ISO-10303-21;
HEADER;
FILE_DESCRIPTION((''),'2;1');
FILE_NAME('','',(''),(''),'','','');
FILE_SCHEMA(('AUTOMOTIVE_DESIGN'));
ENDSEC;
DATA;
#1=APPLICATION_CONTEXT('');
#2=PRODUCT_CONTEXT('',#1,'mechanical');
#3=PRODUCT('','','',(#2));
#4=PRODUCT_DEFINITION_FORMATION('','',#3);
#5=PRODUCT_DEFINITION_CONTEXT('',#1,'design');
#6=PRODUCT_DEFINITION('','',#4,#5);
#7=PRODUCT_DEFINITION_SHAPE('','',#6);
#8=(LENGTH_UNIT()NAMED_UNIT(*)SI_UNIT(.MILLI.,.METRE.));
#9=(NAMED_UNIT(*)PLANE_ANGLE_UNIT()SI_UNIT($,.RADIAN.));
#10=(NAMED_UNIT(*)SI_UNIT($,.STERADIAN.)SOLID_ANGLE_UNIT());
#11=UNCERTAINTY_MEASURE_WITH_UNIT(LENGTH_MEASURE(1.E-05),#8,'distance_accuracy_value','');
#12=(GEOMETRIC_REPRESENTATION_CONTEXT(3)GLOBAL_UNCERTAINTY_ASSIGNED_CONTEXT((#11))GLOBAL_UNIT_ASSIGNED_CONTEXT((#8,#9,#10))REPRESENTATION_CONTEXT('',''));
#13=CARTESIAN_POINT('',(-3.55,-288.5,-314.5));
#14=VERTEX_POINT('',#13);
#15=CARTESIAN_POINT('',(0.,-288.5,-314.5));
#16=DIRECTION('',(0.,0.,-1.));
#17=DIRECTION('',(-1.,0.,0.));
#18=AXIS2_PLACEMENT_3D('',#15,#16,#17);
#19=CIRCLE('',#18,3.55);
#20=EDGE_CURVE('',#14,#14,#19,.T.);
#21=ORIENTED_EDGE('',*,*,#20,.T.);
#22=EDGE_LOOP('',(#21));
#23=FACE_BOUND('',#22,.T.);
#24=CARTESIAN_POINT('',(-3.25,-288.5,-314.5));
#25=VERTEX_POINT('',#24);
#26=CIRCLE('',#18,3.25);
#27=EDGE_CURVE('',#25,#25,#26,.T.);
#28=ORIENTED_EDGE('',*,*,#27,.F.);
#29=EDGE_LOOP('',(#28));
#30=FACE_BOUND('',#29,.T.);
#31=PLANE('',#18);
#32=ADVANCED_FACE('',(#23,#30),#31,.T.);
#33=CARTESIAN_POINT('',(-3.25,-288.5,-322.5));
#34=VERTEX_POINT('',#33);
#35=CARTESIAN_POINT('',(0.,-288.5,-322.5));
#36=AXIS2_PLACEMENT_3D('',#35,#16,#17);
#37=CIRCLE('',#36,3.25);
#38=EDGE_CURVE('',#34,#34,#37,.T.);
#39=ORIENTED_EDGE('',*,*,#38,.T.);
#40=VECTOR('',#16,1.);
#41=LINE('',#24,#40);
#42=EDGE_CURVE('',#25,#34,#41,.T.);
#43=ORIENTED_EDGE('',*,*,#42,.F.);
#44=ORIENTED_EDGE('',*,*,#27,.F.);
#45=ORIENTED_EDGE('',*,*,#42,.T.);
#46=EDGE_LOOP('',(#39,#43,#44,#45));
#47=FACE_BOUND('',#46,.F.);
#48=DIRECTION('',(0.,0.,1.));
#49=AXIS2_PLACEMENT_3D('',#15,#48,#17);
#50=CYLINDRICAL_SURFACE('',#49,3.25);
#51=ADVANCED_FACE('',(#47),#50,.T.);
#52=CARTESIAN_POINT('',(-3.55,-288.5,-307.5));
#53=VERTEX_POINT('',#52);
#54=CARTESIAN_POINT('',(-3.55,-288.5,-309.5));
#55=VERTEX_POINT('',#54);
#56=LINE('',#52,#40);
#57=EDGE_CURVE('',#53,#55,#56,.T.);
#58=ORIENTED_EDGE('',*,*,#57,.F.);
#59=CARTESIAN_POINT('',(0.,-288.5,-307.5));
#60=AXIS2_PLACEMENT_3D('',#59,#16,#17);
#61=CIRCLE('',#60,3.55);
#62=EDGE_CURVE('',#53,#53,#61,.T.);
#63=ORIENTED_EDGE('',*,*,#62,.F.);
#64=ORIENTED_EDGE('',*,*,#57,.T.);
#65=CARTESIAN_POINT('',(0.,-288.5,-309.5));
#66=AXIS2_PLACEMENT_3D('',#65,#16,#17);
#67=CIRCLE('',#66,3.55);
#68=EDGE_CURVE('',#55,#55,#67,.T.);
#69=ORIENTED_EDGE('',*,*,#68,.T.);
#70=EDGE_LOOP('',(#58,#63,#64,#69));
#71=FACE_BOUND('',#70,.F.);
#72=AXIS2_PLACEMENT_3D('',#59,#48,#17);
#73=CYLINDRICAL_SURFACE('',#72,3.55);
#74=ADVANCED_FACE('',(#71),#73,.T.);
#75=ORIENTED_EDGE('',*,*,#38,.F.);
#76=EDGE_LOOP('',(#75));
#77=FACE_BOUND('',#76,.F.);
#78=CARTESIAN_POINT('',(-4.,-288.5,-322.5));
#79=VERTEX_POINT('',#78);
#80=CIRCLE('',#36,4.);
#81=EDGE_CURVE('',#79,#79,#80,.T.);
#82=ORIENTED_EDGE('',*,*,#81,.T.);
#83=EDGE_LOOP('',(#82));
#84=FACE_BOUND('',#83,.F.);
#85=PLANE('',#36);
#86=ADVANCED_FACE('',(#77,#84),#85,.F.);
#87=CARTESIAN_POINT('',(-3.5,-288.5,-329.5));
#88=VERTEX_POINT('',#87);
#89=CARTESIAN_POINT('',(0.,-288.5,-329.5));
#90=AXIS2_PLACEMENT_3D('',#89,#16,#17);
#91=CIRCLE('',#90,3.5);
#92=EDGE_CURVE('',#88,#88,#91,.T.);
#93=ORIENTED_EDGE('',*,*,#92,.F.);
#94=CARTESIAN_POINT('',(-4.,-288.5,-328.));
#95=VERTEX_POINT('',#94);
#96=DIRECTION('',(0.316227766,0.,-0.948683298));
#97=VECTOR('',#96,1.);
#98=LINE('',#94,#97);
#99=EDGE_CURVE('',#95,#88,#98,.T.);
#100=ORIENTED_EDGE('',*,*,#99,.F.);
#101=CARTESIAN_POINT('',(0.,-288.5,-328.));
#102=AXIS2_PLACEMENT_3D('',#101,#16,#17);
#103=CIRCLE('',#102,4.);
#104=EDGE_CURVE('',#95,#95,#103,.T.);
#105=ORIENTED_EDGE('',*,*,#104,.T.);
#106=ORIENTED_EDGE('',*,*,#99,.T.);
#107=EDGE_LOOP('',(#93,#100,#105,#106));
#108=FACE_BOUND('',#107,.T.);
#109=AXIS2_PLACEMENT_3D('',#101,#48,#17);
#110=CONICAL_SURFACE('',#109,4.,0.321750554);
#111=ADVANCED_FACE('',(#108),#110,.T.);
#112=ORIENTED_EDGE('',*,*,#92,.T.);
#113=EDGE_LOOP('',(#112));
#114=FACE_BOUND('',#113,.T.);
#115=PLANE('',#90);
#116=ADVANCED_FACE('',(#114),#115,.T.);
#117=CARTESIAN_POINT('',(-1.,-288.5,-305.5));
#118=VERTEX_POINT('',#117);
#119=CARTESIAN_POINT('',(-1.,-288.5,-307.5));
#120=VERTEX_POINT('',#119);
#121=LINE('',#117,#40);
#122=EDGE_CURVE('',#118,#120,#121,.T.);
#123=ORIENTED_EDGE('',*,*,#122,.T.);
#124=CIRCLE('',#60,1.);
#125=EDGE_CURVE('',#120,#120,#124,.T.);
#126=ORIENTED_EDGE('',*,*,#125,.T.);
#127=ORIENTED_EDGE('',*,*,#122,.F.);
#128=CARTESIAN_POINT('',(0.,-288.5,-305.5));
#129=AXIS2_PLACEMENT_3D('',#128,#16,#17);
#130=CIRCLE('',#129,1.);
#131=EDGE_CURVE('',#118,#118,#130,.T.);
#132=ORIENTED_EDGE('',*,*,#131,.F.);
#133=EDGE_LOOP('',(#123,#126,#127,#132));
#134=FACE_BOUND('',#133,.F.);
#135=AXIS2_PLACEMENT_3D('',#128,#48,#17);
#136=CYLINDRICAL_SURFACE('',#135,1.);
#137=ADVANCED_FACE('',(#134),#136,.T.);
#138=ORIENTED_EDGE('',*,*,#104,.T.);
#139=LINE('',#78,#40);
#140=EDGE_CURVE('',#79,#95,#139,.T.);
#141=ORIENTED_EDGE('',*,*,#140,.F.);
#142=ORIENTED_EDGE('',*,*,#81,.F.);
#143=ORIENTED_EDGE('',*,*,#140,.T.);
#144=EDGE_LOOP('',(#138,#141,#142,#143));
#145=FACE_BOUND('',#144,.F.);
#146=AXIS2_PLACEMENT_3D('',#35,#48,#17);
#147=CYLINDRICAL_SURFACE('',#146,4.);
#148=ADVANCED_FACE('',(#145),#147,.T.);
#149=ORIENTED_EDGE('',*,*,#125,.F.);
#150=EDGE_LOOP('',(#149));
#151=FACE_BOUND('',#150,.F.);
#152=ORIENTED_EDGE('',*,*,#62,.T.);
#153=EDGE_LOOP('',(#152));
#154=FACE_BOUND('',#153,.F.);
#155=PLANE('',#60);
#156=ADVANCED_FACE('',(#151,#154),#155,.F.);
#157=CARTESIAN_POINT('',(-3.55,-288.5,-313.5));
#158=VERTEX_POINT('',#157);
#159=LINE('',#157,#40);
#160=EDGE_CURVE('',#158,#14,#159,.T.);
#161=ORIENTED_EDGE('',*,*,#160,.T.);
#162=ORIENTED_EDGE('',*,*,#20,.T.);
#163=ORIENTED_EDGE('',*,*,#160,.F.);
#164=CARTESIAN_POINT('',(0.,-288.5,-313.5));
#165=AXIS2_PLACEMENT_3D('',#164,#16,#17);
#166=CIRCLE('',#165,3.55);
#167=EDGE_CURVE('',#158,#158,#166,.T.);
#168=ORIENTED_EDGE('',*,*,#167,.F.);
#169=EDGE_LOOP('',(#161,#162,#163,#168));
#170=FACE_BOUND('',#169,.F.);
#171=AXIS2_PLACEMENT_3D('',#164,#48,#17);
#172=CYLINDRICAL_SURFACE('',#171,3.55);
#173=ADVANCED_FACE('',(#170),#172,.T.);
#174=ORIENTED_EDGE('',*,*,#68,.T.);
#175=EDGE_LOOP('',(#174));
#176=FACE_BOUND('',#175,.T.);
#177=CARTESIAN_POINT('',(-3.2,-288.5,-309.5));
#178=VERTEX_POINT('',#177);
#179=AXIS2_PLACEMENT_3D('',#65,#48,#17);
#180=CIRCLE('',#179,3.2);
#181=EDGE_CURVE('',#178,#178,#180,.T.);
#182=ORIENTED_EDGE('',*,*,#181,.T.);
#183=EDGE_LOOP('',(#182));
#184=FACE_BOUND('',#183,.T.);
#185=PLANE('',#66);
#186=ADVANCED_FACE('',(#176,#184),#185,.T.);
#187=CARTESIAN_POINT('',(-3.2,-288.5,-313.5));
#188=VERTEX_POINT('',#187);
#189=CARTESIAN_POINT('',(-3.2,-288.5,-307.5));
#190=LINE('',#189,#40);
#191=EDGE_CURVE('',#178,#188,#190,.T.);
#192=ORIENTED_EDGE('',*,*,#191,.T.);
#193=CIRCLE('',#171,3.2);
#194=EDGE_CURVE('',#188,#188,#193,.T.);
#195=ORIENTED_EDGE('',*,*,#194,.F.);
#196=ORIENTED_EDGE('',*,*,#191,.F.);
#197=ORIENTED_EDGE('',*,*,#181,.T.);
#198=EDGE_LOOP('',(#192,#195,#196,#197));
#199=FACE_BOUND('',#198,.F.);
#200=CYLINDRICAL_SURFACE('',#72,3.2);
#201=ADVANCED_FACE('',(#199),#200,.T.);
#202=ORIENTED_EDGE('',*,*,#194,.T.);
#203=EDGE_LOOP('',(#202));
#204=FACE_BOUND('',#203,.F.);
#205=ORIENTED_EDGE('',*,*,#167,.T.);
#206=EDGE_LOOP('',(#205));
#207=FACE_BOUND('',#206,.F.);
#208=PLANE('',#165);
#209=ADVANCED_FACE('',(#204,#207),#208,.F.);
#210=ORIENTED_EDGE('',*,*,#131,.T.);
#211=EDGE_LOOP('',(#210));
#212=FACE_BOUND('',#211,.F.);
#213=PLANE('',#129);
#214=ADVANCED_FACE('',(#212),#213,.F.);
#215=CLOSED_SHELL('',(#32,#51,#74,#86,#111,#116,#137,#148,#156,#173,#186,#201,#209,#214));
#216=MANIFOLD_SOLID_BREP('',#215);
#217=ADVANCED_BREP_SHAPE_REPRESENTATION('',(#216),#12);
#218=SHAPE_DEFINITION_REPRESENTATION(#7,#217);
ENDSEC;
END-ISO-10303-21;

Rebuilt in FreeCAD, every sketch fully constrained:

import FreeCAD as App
import Part
import Sketcher

V = App.Vector

doc = App.newDocument("Part")
params = doc.addObject("Spreadsheet::Sheet", "Params")
for row, (alias, value) in enumerate([
    ("sketch1_diameter", "6.4 mm"),
    ("pad1_length", "22 mm"),
    ("sketch2_diameter", "7.1 mm"),
    ("pad2_length", "2 mm"),
    ("sketch3_diameter", "7.1 mm"),
    ("pad3_length", "1 mm"),
    ("sketch4_diameter", "6.5 mm"),
    ("pad4_length", "8 mm"),
    ("sketch5_diameter", "8 mm"),
    ("pad5_length", "5.5 mm"),
    ("sketch6_width", "4 mm"),
    ("sketch6_width2", "3.5 mm"),
    ("sketch6_height", "1.5 mm"),
    ("revolution_angle", "360 deg"),
    ("sketch7_diameter", "2 mm"),
    ("pad6_length", "2 mm"),
], start=1):
    params.set(f"A{row}", alias)
    params.set(f"B{row}", "=" + value)
    params.setAlias(f"B{row}", alias)

body = doc.addObject("PartDesign::Body", "Body")

# Sketch on XY plane
sketch1 = body.newObject("Sketcher::SketchObject", "Sketch")
sketch1.AttachmentSupport = (doc.getObject("XY_Plane"), [""])
sketch1.MapMode = "FlatFace"
sketch1.AttachmentOffset = App.Placement(V(0, 0, 5), App.Rotation())
sketch1.addGeometry(Part.Circle(V(0, 0, 0), V(0, 0, 1), 3.2), False)
sketch1.addConstraint([
    Sketcher.Constraint("Coincident", 0, 3, -1, 1),
    Sketcher.Constraint("Diameter", 0, 6.4),
])
sketch1.setExpression("Constraints[1]", "Params.sketch1_diameter")
pad1 = body.newObject("PartDesign::Pad", "Pad")
pad1.Profile = sketch1
pad1.setExpression("Length", "Params.pad1_length")
body2 = doc.addObject("PartDesign::Body", "Body001")

# Sketch on XY plane
sketch2 = body2.newObject("Sketcher::SketchObject", "Sketch001")
sketch2.AttachmentSupport = (doc.getObject("XY_Plane001"), [""])
sketch2.MapMode = "FlatFace"
sketch2.AttachmentOffset = App.Placement(V(0, 0, 5), App.Rotation())
sketch2.addGeometry(Part.Circle(V(0, 0, 0), V(0, 0, 1), 3.55), False)
sketch2.addConstraint([
    Sketcher.Constraint("Coincident", 0, 3, -1, 1),
    Sketcher.Constraint("Diameter", 0, 7.1),
])
sketch2.setExpression("Constraints[1]", "Params.sketch2_diameter")
pad2 = body2.newObject("PartDesign::Pad", "Pad001")
pad2.Profile = sketch2
pad2.setExpression("Length", "Params.pad2_length")
body3 = doc.addObject("PartDesign::Body", "Body002")

# Sketch on XY plane
sketch3 = body3.newObject("Sketcher::SketchObject", "Sketch002")
sketch3.AttachmentSupport = (doc.getObject("XY_Plane002"), [""])
sketch3.MapMode = "FlatFace"
sketch3.AttachmentOffset = App.Placement(V(0, 0, 11), App.Rotation())
sketch3.addGeometry(Part.Circle(V(0, 0, 0), V(0, 0, 1), 3.55), False)
sketch3.addConstraint([
    Sketcher.Constraint("Coincident", 0, 3, -1, 1),
    Sketcher.Constraint("Diameter", 0, 7.1),
])
sketch3.setExpression("Constraints[1]", "Params.sketch3_diameter")
pad3 = body3.newObject("PartDesign::Pad", "Pad002")
pad3.Profile = sketch3
pad3.setExpression("Length", "Params.pad3_length")
body4 = doc.addObject("PartDesign::Body", "Body003")

# Sketch on XY plane
sketch4 = body4.newObject("Sketcher::SketchObject", "Sketch003")
sketch4.AttachmentSupport = (doc.getObject("XY_Plane003"), [""])
sketch4.MapMode = "FlatFace"
sketch4.AttachmentOffset = App.Placement(V(0, 0, 12), App.Rotation())
sketch4.addGeometry(Part.Circle(V(0, 0, 0), V(0, 0, 1), 3.25), False)
sketch4.addConstraint([
    Sketcher.Constraint("Coincident", 0, 3, -1, 1),
    Sketcher.Constraint("Diameter", 0, 6.5),
])
sketch4.setExpression("Constraints[1]", "Params.sketch4_diameter")
pad4 = body4.newObject("PartDesign::Pad", "Pad003")
pad4.Profile = sketch4
pad4.setExpression("Length", "Params.pad4_length")
body5 = doc.addObject("PartDesign::Body", "Body004")

# Sketch on XY plane
sketch5 = body5.newObject("Sketcher::SketchObject", "Sketch004")
sketch5.AttachmentSupport = (doc.getObject("XY_Plane004"), [""])
sketch5.MapMode = "FlatFace"
sketch5.AttachmentOffset = App.Placement(V(0, 0, 20), App.Rotation())
sketch5.addGeometry(Part.Circle(V(0, 0, 0), V(0, 0, 1), 4), False)
sketch5.addConstraint([
    Sketcher.Constraint("Coincident", 0, 3, -1, 1),
    Sketcher.Constraint("Diameter", 0, 8.0),
])
sketch5.setExpression("Constraints[1]", "Params.sketch5_diameter")
pad5 = body5.newObject("PartDesign::Pad", "Pad004")
pad5.Profile = sketch5
pad5.setExpression("Length", "Params.pad5_length")
body6 = doc.addObject("PartDesign::Body", "Body005")

# Sketch on XZ plane
sketch6 = body6.newObject("Sketcher::SketchObject", "Sketch005")
sketch6.AttachmentSupport = (doc.getObject("XZ_Plane005"), [""])
sketch6.MapMode = "FlatFace"
sketch6.addGeometry([
    Part.LineSegment(V(0, 25.5, 0), V(4, 25.5, 0)),
    Part.LineSegment(V(4, 25.5, 0), V(3.5, 27, 0)),
    Part.LineSegment(V(3.5, 27, 0), V(0, 27, 0)),
    Part.LineSegment(V(0, 27, 0), V(0, 25.5, 0)),
], False)
sketch6.addConstraint([
    Sketcher.Constraint("Coincident", 0, 2, 1, 1),
    Sketcher.Constraint("Coincident", 1, 2, 2, 1),
    Sketcher.Constraint("Coincident", 2, 2, 3, 1),
    Sketcher.Constraint("Coincident", 3, 2, 0, 1),
    Sketcher.Constraint("Horizontal", 0),
    Sketcher.Constraint("Horizontal", 2),
    Sketcher.Constraint("Vertical", 3),
    Sketcher.Constraint("PointOnObject", 2, 2, -2),
    Sketcher.Constraint("DistanceX", 0, 1, 0, 2, 4.0),
    Sketcher.Constraint("DistanceX", 2, 2, 2, 1, 3.5),
    Sketcher.Constraint("DistanceY", 3, 2, 3, 1, 1.5),
    Sketcher.Constraint("DistanceY", -1, 1, 1, 2, 27.0),
])
sketch6.setExpression("Constraints[8]", "Params.sketch6_width")
sketch6.setExpression("Constraints[9]", "Params.sketch6_width2")
sketch6.setExpression("Constraints[10]", "Params.sketch6_height")
revolution = body6.newObject("PartDesign::Revolution", "Revolution")
revolution.Profile = sketch6
revolution.ReferenceAxis = (sketch6, ["V_Axis"])
revolution.setExpression("Angle", "Params.revolution_angle")
doc.recompute()

boolean = body6.newObject("PartDesign::Boolean", "Boolean")
boolean.Type = "Fuse"
boolean.addObjects([body])
doc.recompute()

boolean2 = body6.newObject("PartDesign::Boolean", "Boolean001")
boolean2.Type = "Fuse"
boolean2.addObjects([body2])
doc.recompute()

boolean3 = body6.newObject("PartDesign::Boolean", "Boolean002")
boolean3.Type = "Fuse"
boolean3.addObjects([body3])
doc.recompute()

boolean4 = body6.newObject("PartDesign::Boolean", "Boolean003")
boolean4.Type = "Fuse"
boolean4.addObjects([body4])
doc.recompute()

boolean5 = body6.newObject("PartDesign::Boolean", "Boolean004")
boolean5.Type = "Fuse"
boolean5.addObjects([body5])
body7 = doc.addObject("PartDesign::Body", "Body006")

# Sketch on XY plane
sketch7 = body7.newObject("Sketcher::SketchObject", "Sketch006")
sketch7.AttachmentSupport = (doc.getObject("XY_Plane006"), [""])
sketch7.MapMode = "FlatFace"
sketch7.AttachmentOffset = App.Placement(V(0, 0, 3), App.Rotation())
sketch7.addGeometry(Part.Circle(V(0, 0, 0), V(0, 0, 1), 1), False)
sketch7.addConstraint([
    Sketcher.Constraint("Coincident", 0, 3, -1, 1),
    Sketcher.Constraint("Diameter", 0, 2.0),
])
sketch7.setExpression("Constraints[1]", "Params.sketch7_diameter")
pad6 = body7.newObject("PartDesign::Pad", "Pad005")
pad6.Profile = sketch7
pad6.setExpression("Length", "Params.pad6_length")
doc.recompute()

boolean6 = body7.newObject("PartDesign::Boolean", "Boolean005")
boolean6.Type = "Fuse"
boolean6.addObjects([body6])
body8 = doc.addObject("PartDesign::Body", "Body007")
doc.recompute()

body7.Placement = App.Placement(V(0, -288.5, -302.5), App.Rotation(V(0, 1, 0), 180))
boolean7 = body8.newObject("PartDesign::Boolean", "Boolean006")
boolean7.Type = "Fuse"
boolean7.addObjects([body7])

doc.recompute()
